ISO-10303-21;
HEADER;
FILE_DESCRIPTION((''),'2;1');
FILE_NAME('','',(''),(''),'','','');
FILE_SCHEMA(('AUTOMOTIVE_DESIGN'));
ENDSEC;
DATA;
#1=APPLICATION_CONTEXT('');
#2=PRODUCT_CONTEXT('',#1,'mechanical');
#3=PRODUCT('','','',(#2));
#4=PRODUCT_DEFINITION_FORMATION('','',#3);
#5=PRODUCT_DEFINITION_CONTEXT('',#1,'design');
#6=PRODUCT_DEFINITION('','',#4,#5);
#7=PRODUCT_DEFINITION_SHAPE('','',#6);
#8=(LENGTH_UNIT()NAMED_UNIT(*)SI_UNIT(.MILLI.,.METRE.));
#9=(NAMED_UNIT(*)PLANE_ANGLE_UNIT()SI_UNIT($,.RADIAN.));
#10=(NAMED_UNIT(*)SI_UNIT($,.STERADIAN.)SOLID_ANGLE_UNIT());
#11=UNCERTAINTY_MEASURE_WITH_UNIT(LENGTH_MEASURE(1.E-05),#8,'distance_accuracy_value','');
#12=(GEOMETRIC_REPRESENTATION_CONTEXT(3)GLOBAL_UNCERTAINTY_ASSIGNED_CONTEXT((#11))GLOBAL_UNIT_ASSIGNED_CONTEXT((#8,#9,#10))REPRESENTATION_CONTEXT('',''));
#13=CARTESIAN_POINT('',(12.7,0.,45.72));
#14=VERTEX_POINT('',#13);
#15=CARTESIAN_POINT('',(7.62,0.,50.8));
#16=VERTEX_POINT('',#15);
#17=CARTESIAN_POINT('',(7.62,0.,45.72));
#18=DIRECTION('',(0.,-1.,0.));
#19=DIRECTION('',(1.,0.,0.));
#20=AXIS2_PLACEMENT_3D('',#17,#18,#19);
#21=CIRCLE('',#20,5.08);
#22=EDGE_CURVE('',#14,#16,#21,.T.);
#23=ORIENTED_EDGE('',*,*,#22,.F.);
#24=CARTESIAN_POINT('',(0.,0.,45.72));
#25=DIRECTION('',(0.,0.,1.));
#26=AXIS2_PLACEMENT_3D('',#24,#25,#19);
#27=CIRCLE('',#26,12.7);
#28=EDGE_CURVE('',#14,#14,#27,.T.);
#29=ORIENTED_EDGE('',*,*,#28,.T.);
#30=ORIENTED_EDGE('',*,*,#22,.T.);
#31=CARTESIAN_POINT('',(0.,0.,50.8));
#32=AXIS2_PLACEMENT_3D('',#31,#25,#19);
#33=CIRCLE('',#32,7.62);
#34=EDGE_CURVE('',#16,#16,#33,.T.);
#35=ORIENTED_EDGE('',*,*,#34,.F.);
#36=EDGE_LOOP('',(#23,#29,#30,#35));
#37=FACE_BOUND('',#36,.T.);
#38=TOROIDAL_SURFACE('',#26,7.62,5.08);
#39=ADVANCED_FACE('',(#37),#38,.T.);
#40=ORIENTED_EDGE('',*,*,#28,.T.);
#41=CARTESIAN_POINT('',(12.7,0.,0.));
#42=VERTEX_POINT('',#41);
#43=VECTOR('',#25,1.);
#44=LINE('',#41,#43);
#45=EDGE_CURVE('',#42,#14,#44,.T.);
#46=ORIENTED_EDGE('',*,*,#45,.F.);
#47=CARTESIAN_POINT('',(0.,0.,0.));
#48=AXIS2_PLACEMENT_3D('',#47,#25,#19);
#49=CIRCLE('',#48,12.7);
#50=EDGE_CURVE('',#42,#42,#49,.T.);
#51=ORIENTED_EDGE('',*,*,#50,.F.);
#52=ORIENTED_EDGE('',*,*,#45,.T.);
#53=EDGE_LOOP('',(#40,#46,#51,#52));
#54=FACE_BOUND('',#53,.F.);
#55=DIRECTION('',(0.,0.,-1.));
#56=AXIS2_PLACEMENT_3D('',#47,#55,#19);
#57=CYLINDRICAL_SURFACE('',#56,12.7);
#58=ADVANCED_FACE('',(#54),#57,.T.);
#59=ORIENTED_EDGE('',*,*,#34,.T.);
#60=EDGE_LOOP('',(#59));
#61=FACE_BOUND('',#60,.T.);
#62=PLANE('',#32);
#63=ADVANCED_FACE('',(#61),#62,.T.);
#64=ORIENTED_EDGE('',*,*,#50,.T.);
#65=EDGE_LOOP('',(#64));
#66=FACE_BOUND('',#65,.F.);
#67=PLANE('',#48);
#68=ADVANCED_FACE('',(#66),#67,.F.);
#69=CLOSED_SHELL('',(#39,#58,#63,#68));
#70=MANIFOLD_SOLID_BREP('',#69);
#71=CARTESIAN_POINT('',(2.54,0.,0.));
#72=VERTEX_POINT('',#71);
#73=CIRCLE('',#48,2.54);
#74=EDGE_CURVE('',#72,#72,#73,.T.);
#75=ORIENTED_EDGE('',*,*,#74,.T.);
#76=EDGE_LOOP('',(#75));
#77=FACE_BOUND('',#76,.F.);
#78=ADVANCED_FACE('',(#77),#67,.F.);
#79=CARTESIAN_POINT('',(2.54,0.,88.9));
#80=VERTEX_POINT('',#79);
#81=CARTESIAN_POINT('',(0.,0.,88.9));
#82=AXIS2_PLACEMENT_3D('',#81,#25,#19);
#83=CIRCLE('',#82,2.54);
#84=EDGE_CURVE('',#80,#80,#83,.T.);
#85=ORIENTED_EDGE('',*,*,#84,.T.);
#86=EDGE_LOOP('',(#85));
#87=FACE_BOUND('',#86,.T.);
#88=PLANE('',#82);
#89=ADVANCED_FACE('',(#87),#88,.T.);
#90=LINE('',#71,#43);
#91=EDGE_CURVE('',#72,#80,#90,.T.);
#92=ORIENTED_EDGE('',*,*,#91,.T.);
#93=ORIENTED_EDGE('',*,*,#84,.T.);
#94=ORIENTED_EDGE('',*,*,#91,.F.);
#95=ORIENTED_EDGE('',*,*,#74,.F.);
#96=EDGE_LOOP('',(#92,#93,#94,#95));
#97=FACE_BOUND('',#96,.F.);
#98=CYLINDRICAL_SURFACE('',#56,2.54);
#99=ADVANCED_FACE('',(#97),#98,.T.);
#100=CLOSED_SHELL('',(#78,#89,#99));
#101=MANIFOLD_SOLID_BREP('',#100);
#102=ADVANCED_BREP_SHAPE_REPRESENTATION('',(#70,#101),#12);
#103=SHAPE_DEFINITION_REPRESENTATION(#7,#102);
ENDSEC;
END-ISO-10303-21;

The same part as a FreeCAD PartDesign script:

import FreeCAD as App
import Part
import Sketcher
from FreeCAD import Vector
Q = App.Units.Quantity


def edges_at(feature, points):
    """Names of the edges that pass closest to the given points."""
    edges = feature.Shape.Edges
    near = lambda p: min(range(len(edges)), key=lambda i: edges[i].distToShape(Part.Vertex(*p))[0])
    return sorted({f"Edge{near(p) + 1}" for p in points})

doc = App.newDocument("Part")
body = doc.addObject("PartDesign::Body", "Body")

sketch1 = doc.addObject("Sketcher::SketchObject", "Sketch")
body.addObject(sketch1)
sketch1.AttachmentSupport = (doc.XY_Plane, [""])
sketch1.MapMode = "FlatFace"
sketch1.addGeometry(Part.Circle(Vector(0, 0, 0), Vector(0, 0, 1), 13), False)
sketch1.addConstraint(Sketcher.Constraint("Coincident", 0, 3, -1, 1))
sketch1.addConstraint(Sketcher.Constraint("Diameter", 0, Q("1 in")))
pad1 = doc.addObject("PartDesign::Pad", "Pad")
body.addObject(pad1)
pad1.Profile = sketch1
pad1.Length = Q("2 in")
doc.recompute()

fillet = doc.addObject("PartDesign::Fillet", "Fillet")
body.addObject(fillet)
fillet.Base = (pad1, edges_at(pad1, [(-12.7, 0, 50.8)]))
fillet.Radius = Q("0.2 in")
body2 = doc.addObject("PartDesign::Body", "Body001")

sketch2 = doc.addObject("Sketcher::SketchObject", "Sketch001")
body2.addObject(sketch2)
sketch2.AttachmentSupport = (doc.getObject("XY_Plane001"), [""])
sketch2.MapMode = "FlatFace"
sketch2.addGeometry(Part.Circle(Vector(0, 0, 0), Vector(0, 0, 1), 2.5), False)
sketch2.addConstraint(Sketcher.Constraint("Coincident", 0, 3, -1, 1))
sketch2.addConstraint(Sketcher.Constraint("Diameter", 0, Q("0.2 in")))
pad2 = doc.addObject("PartDesign::Pad", "Pad001")
body2.addObject(pad2)
pad2.Profile = sketch2
pad2.Length = Q("3.5 in")

doc.recompute()
